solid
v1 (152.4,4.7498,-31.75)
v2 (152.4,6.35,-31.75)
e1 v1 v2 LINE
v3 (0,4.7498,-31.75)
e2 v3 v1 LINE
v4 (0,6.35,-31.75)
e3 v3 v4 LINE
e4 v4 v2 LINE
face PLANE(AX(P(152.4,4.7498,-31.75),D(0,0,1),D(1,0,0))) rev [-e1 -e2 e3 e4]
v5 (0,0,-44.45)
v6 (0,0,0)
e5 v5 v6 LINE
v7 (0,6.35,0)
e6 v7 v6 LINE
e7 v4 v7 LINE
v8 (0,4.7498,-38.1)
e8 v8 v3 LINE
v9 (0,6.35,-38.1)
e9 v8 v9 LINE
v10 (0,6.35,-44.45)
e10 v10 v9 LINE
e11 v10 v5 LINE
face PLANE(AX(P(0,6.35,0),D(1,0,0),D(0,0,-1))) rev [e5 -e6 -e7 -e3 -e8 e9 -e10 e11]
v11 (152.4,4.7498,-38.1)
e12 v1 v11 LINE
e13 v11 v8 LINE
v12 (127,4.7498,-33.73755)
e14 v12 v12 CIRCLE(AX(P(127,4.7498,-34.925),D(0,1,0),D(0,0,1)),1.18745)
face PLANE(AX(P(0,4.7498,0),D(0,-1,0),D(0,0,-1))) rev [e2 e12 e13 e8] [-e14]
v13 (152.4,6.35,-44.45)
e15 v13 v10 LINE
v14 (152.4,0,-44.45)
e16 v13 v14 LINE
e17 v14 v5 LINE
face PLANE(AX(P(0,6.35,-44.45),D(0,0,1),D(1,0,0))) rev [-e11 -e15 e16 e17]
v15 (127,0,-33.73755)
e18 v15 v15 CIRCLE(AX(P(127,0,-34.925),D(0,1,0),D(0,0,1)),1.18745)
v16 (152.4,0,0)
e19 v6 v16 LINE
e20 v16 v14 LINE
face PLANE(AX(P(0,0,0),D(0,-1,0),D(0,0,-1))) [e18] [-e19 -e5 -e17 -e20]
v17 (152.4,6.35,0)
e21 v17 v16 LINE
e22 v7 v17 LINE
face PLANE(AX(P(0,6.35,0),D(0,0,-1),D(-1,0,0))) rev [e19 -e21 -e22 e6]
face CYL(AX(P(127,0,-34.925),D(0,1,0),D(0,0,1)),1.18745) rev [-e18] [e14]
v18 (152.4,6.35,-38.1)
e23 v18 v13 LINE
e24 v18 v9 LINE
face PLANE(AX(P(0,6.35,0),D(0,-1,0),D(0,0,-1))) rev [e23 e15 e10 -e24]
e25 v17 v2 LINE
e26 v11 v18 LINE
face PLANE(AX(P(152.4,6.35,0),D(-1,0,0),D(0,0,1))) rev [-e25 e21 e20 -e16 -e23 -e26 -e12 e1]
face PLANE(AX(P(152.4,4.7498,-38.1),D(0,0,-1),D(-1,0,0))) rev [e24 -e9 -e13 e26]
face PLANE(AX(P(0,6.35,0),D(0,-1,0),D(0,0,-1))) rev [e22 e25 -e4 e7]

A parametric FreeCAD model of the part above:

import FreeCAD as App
import Part
import Sketcher

V = App.Vector
Q = App.Units.Quantity

doc = App.newDocument("Part")
body = doc.addObject("PartDesign::Body", "Body")

sketch1 = body.newObject("Sketcher::SketchObject", "Sketch")
sketch1.AttachmentSupport = (doc.getObject("XZ_Plane"), [""])
sketch1.MapMode = "FlatFace"
sketch1.addGeometry([
    Part.LineSegment(V(0, -44, 0), V(0, 0, 0)),
    Part.LineSegment(V(0, 0, 0), V(152, 0, 0)),
    Part.LineSegment(V(152, 0, 0), V(152, -44, 0)),
    Part.LineSegment(V(152, -44, 0), V(0, -44, 0)),
], False)
sketch1.addConstraint([
    Sketcher.Constraint("Coincident", 0, 2, 1, 1),
    Sketcher.Constraint("Coincident", 1, 2, 2, 1),
    Sketcher.Constraint("Coincident", 2, 2, 3, 1),
    Sketcher.Constraint("Coincident", 3, 2, 0, 1),
    Sketcher.Constraint("Vertical", 0),
    Sketcher.Constraint("Horizontal", 1),
    Sketcher.Constraint("Vertical", 2),
    Sketcher.Constraint("Horizontal", 3),
    Sketcher.Constraint("Coincident", 0, 2, -1, 1),
    Sketcher.Constraint("DistanceX", 1, 1, 1, 2, Q("6 in")),
    Sketcher.Constraint("DistanceY", 0, 1, 0, 2, Q("1.75 in")),
])
pad1 = body.newObject("PartDesign::Pad", "Pad")
pad1.Profile = sketch1
pad1.Length = Q("0.25 in")
pad1.Reversed = True

sketch2 = body.newObject("Sketcher::SketchObject", "Sketch001")
sketch2.AttachmentSupport = (doc.getObject("XZ_Plane"), [""])
sketch2.MapMode = "FlatFace"
sketch2.AttachmentOffset = App.Placement(V(0, 0, -0.25 * 25.4), App.Rotation())
sketch2.addGeometry([
    Part.LineSegment(V(6, -38, 0), V(6, -32, 0)),
    Part.LineSegment(V(6, -32, 0), V(152, -32, 0)),
    Part.LineSegment(V(152, -32, 0), V(152, -38, 0)),
    Part.LineSegment(V(152, -38, 0), V(6, -38, 0)),
], False)
sketch2.addConstraint([
    Sketcher.Constraint("Coincident", 0, 2, 1, 1),
    Sketcher.Constraint("Coincident", 1, 2, 2, 1),
    Sketcher.Constraint("Coincident", 2, 2, 3, 1),
    Sketcher.Constraint("Coincident", 3, 2, 0, 1),
    Sketcher.Constraint("Vertical", 0),
    Sketcher.Constraint("Horizontal", 1),
    Sketcher.Constraint("Vertical", 2),
    Sketcher.Constraint("Horizontal", 3),
    Sketcher.Constraint("DistanceX", -1, 1, 1, 2, Q("6 in")),
    Sketcher.Constraint("DistanceX", 1, 1, 1, 2, Q("5.75 in")),
    Sketcher.Constraint("DistanceY", 0, 1, 0, 2, Q("0.25 in")),
    Sketcher.Constraint("DistanceY", 2, 2, -1, 1, Q("1.5 in")),
])
pocket1 = body.newObject("PartDesign::Pocket", "Pocket")
pocket1.Profile = sketch2
pocket1.Length = Q("0.063 in")
pocket1.Reversed = True

sketch3 = body.newObject("Sketcher::SketchObject", "Sketch002")
sketch3.AttachmentSupport = (doc.getObject("XZ_Plane"), [""])
sketch3.MapMode = "FlatFace"
sketch3.AttachmentOffset = App.Placement(V(0, 0, -0.187 * 25.4), App.Rotation())
sketch3.addGeometry(Part.Circle(V(127, -34.9, 0), V(0, 0, 1), 1.2), False)
sketch3.addConstraint([
    Sketcher.Constraint("DistanceX", -1, 1, 0, 3, Q("5 in")),
    Sketcher.Constraint("Diameter", 0, Q("0.0935 in")),
    Sketcher.Constraint("DistanceY", 0, 3, -1, 1, Q("1.375 in")),
])
pocket2 = body.newObject("PartDesign::Pocket", "Pocket001")
pocket2.Profile = sketch3
pocket2.Type = "ThroughAll"
pocket2.Reversed = True

sketch4 = body.newObject("Sketcher::SketchObject", "Sketch003")
sketch4.AttachmentSupport = (doc.getObject("XZ_Plane"), [""])
sketch4.MapMode = "FlatFace"
sketch4.AttachmentOffset = App.Placement(V(0, 0, -0.25 * 25.4), App.Rotation())
sketch4.addGeometry([
    Part.LineSegment(V(0, -38, 0), V(0, -32, 0)),
    Part.LineSegment(V(0, -32, 0), V(6, -32, 0)),
    Part.LineSegment(V(6, -32, 0), V(6, -38, 0)),
    Part.LineSegment(V(6, -38, 0), V(0, -38, 0)),
], False)
sketch4.addConstraint([
    Sketcher.Constraint("Coincident", 0, 2, 1, 1),
    Sketcher.Constraint("Coincident", 1, 2, 2, 1),
    Sketcher.Constraint("Coincident", 2, 2, 3, 1),
    Sketcher.Constraint("Coincident", 3, 2, 0, 1),
    Sketcher.Constraint("Vertical", 0),
    Sketcher.Constraint("Horizontal", 1),
    Sketcher.Constraint("Vertical", 2),
    Sketcher.Constraint("Horizontal", 3),
    Sketcher.Constraint("PointOnObject", 0, 2, -2),
    Sketcher.Constraint("Equal", 3, 0),
    Sketcher.Constraint("DistanceX", 1, 1, 1, 2, Q("0.25 in")),
    Sketcher.Constraint("DistanceY", 2, 2, -1, 1, Q("1.5 in")),
])
pocket3 = body.newObject("PartDesign::Pocket", "Pocket002")
pocket3.Profile = sketch4
pocket3.Length = Q("0.063 in")
pocket3.Reversed = True

doc.recompute()
